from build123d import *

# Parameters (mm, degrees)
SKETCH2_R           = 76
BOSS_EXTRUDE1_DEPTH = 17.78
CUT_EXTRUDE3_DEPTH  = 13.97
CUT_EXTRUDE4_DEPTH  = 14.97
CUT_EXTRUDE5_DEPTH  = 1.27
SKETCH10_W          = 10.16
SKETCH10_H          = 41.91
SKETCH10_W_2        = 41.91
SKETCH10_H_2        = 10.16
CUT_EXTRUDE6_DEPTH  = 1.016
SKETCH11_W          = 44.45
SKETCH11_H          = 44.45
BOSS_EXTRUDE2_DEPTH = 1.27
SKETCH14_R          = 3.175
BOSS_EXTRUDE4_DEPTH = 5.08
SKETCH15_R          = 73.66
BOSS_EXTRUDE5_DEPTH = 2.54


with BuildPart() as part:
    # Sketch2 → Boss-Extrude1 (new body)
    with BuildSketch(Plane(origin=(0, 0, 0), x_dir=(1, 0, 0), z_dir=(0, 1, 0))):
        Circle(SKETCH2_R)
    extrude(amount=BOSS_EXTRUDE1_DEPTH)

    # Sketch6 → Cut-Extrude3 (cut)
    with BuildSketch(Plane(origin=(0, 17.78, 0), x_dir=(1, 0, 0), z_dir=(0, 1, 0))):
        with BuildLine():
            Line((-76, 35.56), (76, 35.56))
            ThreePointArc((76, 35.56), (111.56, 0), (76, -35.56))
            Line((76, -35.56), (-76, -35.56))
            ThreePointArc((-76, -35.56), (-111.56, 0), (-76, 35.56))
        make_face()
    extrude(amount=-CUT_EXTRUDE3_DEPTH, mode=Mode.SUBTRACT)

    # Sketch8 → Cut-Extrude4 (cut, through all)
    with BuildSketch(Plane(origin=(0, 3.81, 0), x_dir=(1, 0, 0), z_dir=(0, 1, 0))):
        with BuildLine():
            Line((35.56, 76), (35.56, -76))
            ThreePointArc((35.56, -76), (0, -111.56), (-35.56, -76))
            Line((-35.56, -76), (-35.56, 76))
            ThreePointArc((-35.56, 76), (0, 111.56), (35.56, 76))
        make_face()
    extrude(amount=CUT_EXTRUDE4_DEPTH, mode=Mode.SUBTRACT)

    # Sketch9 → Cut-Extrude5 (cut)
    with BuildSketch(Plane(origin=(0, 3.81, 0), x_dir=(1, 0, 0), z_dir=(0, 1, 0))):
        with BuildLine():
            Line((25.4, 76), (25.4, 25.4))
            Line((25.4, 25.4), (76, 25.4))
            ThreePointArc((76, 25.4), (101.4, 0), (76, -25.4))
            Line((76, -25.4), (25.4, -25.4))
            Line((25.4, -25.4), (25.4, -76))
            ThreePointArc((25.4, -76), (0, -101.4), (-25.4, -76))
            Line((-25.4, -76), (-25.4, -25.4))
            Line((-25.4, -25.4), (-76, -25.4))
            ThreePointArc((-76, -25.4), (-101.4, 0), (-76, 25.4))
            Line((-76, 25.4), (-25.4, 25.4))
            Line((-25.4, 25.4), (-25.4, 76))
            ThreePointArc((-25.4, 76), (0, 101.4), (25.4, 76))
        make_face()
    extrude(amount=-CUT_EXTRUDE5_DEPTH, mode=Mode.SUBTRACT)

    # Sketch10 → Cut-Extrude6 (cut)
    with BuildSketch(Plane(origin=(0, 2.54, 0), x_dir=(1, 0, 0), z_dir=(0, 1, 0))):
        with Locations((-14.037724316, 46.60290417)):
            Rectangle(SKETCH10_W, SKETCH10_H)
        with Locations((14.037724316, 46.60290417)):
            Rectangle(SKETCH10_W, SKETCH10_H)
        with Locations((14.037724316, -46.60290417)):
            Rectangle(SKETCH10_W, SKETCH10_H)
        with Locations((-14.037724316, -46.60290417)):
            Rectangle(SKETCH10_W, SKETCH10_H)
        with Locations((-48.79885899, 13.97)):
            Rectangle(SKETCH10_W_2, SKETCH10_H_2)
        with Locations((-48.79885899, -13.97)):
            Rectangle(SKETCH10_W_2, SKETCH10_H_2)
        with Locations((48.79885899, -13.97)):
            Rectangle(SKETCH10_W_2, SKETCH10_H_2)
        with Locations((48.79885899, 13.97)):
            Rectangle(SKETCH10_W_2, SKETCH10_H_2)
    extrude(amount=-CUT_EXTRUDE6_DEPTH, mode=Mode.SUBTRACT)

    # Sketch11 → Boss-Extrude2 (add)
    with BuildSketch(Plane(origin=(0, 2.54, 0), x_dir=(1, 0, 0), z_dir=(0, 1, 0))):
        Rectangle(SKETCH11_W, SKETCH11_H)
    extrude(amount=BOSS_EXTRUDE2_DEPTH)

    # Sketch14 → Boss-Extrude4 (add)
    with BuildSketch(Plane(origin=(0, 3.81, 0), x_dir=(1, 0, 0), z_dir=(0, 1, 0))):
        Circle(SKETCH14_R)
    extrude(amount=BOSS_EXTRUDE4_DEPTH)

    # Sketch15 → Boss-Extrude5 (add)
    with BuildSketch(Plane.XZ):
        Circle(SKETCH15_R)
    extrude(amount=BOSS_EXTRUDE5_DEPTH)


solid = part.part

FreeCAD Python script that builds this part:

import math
import FreeCAD as App
import Part
import Sketcher
from FreeCAD import Vector
Q = App.Units.Quantity

doc = App.newDocument("Part")
body = doc.addObject("PartDesign::Body", "Body")

# Sketch on XZ plane
sketch1 = body.newObject("Sketcher::SketchObject", "Sketch")
sketch1.AttachmentSupport = (doc.getObject("XZ_Plane"), [""])
sketch1.MapMode = "FlatFace"
sketch1.addGeometry(Part.Circle(Vector(0, 0, 0), Vector(0, 0, 1), 76), False)
sketch1.addConstraint([
    Sketcher.Constraint("Coincident", 0, 3, -1, 1),
    Sketcher.Constraint("Diameter", 0, Q("152 mm")),
])
pad1 = body.newObject("PartDesign::Pad", "Pad")
pad1.Profile = sketch1
pad1.Length = Q("0.7 in")
pad1.Reversed = True

# Sketch on XZ plane
sketch2 = body.newObject("Sketcher::SketchObject", "Sketch001")
sketch2.AttachmentSupport = (doc.getObject("XZ_Plane"), [""])
sketch2.MapMode = "FlatFace"
sketch2.AttachmentOffset = App.Placement(Vector(0, 0, -0.7 * 25.4), App.Rotation())
sketch2.addGeometry([
    Part.LineSegment(Vector(76, -35.56, 0), Vector(-76, -35.56, 0)),
    Part.ArcOfCircle(Part.Circle(Vector(-76, 0, 0), Vector(0, 0, 1), 35.56), math.radians(90), math.radians(270)),
    Part.LineSegment(Vector(-76, 35.56, 0), Vector(76, 35.56, 0)),
    Part.ArcOfCircle(Part.Circle(Vector(76, 0, 0), Vector(0, 0, 1), 35.56), math.radians(-90), math.radians(90)),
], False)
sketch2.addConstraint([
    Sketcher.Constraint("Tangent", 0, 2, 1, 2),
    Sketcher.Constraint("Tangent", 1, 1, 2, 1),
    Sketcher.Constraint("Tangent", 2, 2, 3, 2),
    Sketcher.Constraint("Tangent", 3, 1, 0, 1),
    Sketcher.Constraint("Horizontal", 0),
    Sketcher.Constraint("Horizontal", 2),
    Sketcher.Constraint("Symmetric", 1, 3, 3, 3, -1, 1),
    Sketcher.Constraint("Radius", 1, Q("1.4 in")),
    Sketcher.Constraint("DistanceX", 0, 2, 0, 1, Q("152 mm")),
])
pocket1 = body.newObject("PartDesign::Pocket", "Pocket")
pocket1.Profile = sketch2
pocket1.Length = Q("0.55 in")
pocket1.Reversed = True

# Sketch on XZ plane
sketch3 = body.newObject("Sketcher::SketchObject", "Sketch002")
sketch3.AttachmentSupport = (doc.getObject("XZ_Plane"), [""])
sketch3.MapMode = "FlatFace"
sketch3.AttachmentOffset = App.Placement(Vector(0, 0, -0.15 * 25.4), App.Rotation())
sketch3.addGeometry([
    Part.LineSegment(Vector(35.56, 76, 0), Vector(35.56, -76, 0)),
    Part.ArcOfCircle(Part.Circle(Vector(0, -76, 0), Vector(0, 0, 1), 35.56), math.radians(180), math.radians(360)),
    Part.LineSegment(Vector(-35.56, -76, 0), Vector(-35.56, 76, 0)),
    Part.ArcOfCircle(Part.Circle(Vector(0, 76, 0), Vector(0, 0, 1), 35.56), math.radians(0), math.radians(180)),
], False)
sketch3.addConstraint([
    Sketcher.Constraint("Tangent", 0, 2, 1, 2),
    Sketcher.Constraint("Tangent", 1, 1, 2, 1),
    Sketcher.Constraint("Tangent", 2, 2, 3, 2),
    Sketcher.Constraint("Tangent", 3, 1, 0, 1),
    Sketcher.Constraint("Vertical", 0),
    Sketcher.Constraint("Vertical", 2),
    Sketcher.Constraint("Symmetric", 1, 3, 3, 3, -1, 1),
    Sketcher.Constraint("Radius", 1, Q("1.4 in")),
    Sketcher.Constraint("DistanceY", 0, 2, 0, 1, Q("152 mm")),
])
pocket2 = body.newObject("PartDesign::Pocket", "Pocket001")
pocket2.Profile = sketch3
pocket2.Type = "ThroughAll"

# Sketch on XZ plane
sketch4 = body.newObject("Sketcher::SketchObject", "Sketch003")
sketch4.AttachmentSupport = (doc.getObject("XZ_Plane"), [""])
sketch4.MapMode = "FlatFace"
sketch4.AttachmentOffset = App.Placement(Vector(0, 0, -0.15 * 25.4), App.Rotation())
sketch4.addGeometry([
    Part.LineSegment(Vector(25.4, -25.4, 0), Vector(25.4, -76, 0)),  # 0
    Part.ArcOfCircle(Part.Circle(Vector(0, -76, 0), Vector(0, 0, 1), 25.4), math.radians(180), math.radians(360)),  # 1
    Part.LineSegment(Vector(-25.4, -76, 0), Vector(-25.4, -25.4, 0)),  # 2
    Part.LineSegment(Vector(-25.4, -25.4, 0), Vector(-76, -25.4, 0)),  # 3
    Part.ArcOfCircle(Part.Circle(Vector(-76, 0, 0), Vector(0, 0, 1), 25.4), math.radians(90), math.radians(270)),  # 4
    Part.LineSegment(Vector(-76, 25.4, 0), Vector(-25.4, 25.4, 0)),  # 5
    Part.LineSegment(Vector(-25.4, 25.4, 0), Vector(-25.4, 76, 0)),  # 6
    Part.ArcOfCircle(Part.Circle(Vector(0, 76, 0), Vector(0, 0, 1), 25.4), math.radians(0), math.radians(180)),  # 7
    Part.LineSegment(Vector(25.4, 76, 0), Vector(25.4, 25.4, 0)),  # 8
    Part.LineSegment(Vector(25.4, 25.4, 0), Vector(76, 25.4, 0)),  # 9
    Part.ArcOfCircle(Part.Circle(Vector(76, 0, 0), Vector(0, 0, 1), 25.4), math.radians(-90), math.radians(90)),  # 10
    Part.LineSegment(Vector(76, -25.4, 0), Vector(25.4, -25.4, 0)),  # 11
], False)
sketch4.addConstraint([
    Sketcher.Constraint("Tangent", 0, 2, 1, 2),
    Sketcher.Constraint("Tangent", 1, 1, 2, 1),
    Sketcher.Constraint("Coincident", 2, 2, 3, 1),
    Sketcher.Constraint("Tangent", 3, 2, 4, 2),
    Sketcher.Constraint("Tangent", 4, 1, 5, 1),
    Sketcher.Constraint("Coincident", 5, 2, 6, 1),
    Sketcher.Constraint("Tangent", 6, 2, 7, 2),
    Sketcher.Constraint("Tangent", 7, 1, 8, 1),
    Sketcher.Constraint("Coincident", 8, 2, 9, 1),
    Sketcher.Constraint("Tangent", 9, 2, 10, 2),
    Sketcher.Constraint("Tangent", 10, 1, 11, 1),
    Sketcher.Constraint("Coincident", 11, 2, 0, 1),
    Sketcher.Constraint("Vertical", 0),
    Sketcher.Constraint("Vertical", 2),
    Sketcher.Constraint("Horizontal", 3),
    Sketcher.Constraint("Horizontal", 5),
    Sketcher.Constraint("Vertical", 6),
    Sketcher.Constraint("Vertical", 8),
    Sketcher.Constraint("Horizontal", 9),
    Sketcher.Constraint("Horizontal", 11),
    Sketcher.Constraint("Equal", 1, 4),
    Sketcher.Constraint("Equal", 4, 7),
    Sketcher.Constraint("Equal", 7, 10),
    Sketcher.Constraint("Symmetric", 1, 3, 7, 3, -1, 1),
    Sketcher.Constraint("Symmetric", 4, 3, 10, 3, -1, 1),
    Sketcher.Constraint("Symmetric", 5, 2, 8, 2, -2),
    Sketcher.Constraint("Equal", 11, 0),
    Sketcher.Constraint("Radius", 1, Q("1 in")),
    Sketcher.Constraint("DistanceX", 3, 2, 3, 1, Q("50.6 mm")),
])
pocket3 = body.newObject("PartDesign::Pocket", "Pocket002")
pocket3.Profile = sketch4
pocket3.Length = Q("0.05 in")
pocket3.Reversed = True

# Sketch on XZ plane
sketch5 = body.newObject("Sketcher::SketchObject", "Sketch004")
sketch5.AttachmentSupport = (doc.getObject("XZ_Plane"), [""])
sketch5.MapMode = "FlatFace"
sketch5.AttachmentOffset = App.Placement(Vector(0, 0, -0.1 * 25.4), App.Rotation())
sketch5.addGeometry([
    Part.LineSegment(Vector(-19.117724, -67.557904, 0), Vector(-19.117724, -25.647904, 0)),  # 0
    Part.LineSegment(Vector(-19.117724, -25.647904, 0), Vector(-8.957724, -25.647904, 0)),  # 1
    Part.LineSegment(Vector(-8.957724, -25.647904, 0), Vector(-8.957724, -67.557904, 0)),  # 2
    Part.LineSegment(Vector(-8.957724, -67.557904, 0), Vector(-19.117724, -67.557904, 0)),  # 3
    Part.LineSegment(Vector(8.957724, -67.557904, 0), Vector(8.957724, -25.647904, 0)),  # 4
    Part.LineSegment(Vector(8.957724, -25.647904, 0), Vector(19.117724, -25.647904, 0)),  # 5
    Part.LineSegment(Vector(19.117724, -25.647904, 0), Vector(19.117724, -67.557904, 0)),  # 6
    Part.LineSegment(Vector(19.117724, -67.557904, 0), Vector(8.957724, -67.557904, 0)),  # 7
    Part.LineSegment(Vector(8.957724, 25.647904, 0), Vector(8.957724, 67.557904, 0)),  # 8
    Part.LineSegment(Vector(8.957724, 67.557904, 0), Vector(19.117724, 67.557904, 0)),  # 9
    Part.LineSegment(Vector(19.117724, 67.557904, 0), Vector(19.117724, 25.647904, 0)),  # 10
    Part.LineSegment(Vector(19.117724, 25.647904, 0), Vector(8.957724, 25.647904, 0)),  # 11
    Part.LineSegment(Vector(-19.117724, 25.647904, 0), Vector(-19.117724, 67.557904, 0)),  # 12
    Part.LineSegment(Vector(-19.117724, 67.557904, 0), Vector(-8.957724, 67.557904, 0)),  # 13
    Part.LineSegment(Vector(-8.957724, 67.557904, 0), Vector(-8.957724, 25.647904, 0)),  # 14
    Part.LineSegment(Vector(-8.957724, 25.647904, 0), Vector(-19.117724, 25.647904, 0)),  # 15
    Part.LineSegment(Vector(-69.753859, -19.05, 0), Vector(-69.753859, -8.89, 0)),  # 16
    Part.LineSegment(Vector(-69.753859, -8.89, 0), Vector(-27.843859, -8.89, 0)),  # 17
    Part.LineSegment(Vector(-27.843859, -8.89, 0), Vector(-27.843859, -19.05, 0)),  # 18
    Part.LineSegment(Vector(-27.843859, -19.05, 0), Vector(-69.753859, -19.05, 0)),  # 19
    Part.LineSegment(Vector(-69.753859, 8.89, 0), Vector(-69.753859, 19.05, 0)),  # 20
    Part.LineSegment(Vector(-69.753859, 19.05, 0), Vector(-27.843859, 19.05, 0)),  # 21
    Part.LineSegment(Vector(-27.843859, 19.05, 0), Vector(-27.843859, 8.89, 0)),  # 22
    Part.LineSegment(Vector(-27.843859, 8.89, 0), Vector(-69.753859, 8.89, 0)),  # 23
    Part.LineSegment(Vector(27.843859, 8.89, 0), Vector(27.843859, 19.05, 0)),  # 24
    Part.LineSegment(Vector(27.843859, 19.05, 0), Vector(69.753859, 19.05, 0)),  # 25
    Part.LineSegment(Vector(69.753859, 19.05, 0), Vector(69.753859, 8.89, 0)),  # 26
    Part.LineSegment(Vector(69.753859, 8.89, 0), Vector(27.843859, 8.89, 0)),  # 27
    Part.LineSegment(Vector(27.843859, -19.05, 0), Vector(27.843859, -8.89, 0)),  # 28
    Part.LineSegment(Vector(27.843859, -8.89, 0), Vector(69.753859, -8.89, 0)),  # 29
    Part.LineSegment(Vector(69.753859, -8.89, 0), Vector(69.753859, -19.05, 0)),  # 30
    Part.LineSegment(Vector(69.753859, -19.05, 0), Vector(27.843859, -19.05, 0)),  # 31
], False)
sketch5.addConstraint([
    Sketcher.Constraint("Coincident", 0, 2, 1, 1),
    Sketcher.Constraint("Coincident", 1, 2, 2, 1),
    Sketcher.Constraint("Coincident", 2, 2, 3, 1),
    Sketcher.Constraint("Coincident", 3, 2, 0, 1),
    Sketcher.Constraint("Coincident", 4, 2, 5, 1),
    Sketcher.Constraint("Coincident", 5, 2, 6, 1),
    Sketcher.Constraint("Coincident", 6, 2, 7, 1),
    Sketcher.Constraint("Coincident", 7, 2, 4, 1),
    Sketcher.Constraint("Coincident", 8, 2, 9, 1),
    Sketcher.Constraint("Coincident", 9, 2, 10, 1),
    Sketcher.Constraint("Coincident", 10, 2, 11, 1),
    Sketcher.Constraint("Coincident", 11, 2, 8, 1),
    Sketcher.Constraint("Coincident", 12, 2, 13, 1),
    Sketcher.Constraint("Coincident", 13, 2, 14, 1),
    Sketcher.Constraint("Coincident", 14, 2, 15, 1),
    Sketcher.Constraint("Coincident", 15, 2, 12, 1),
    Sketcher.Constraint("Coincident", 16, 2, 17, 1),
    Sketcher.Constraint("Coincident", 17, 2, 18, 1),
    Sketcher.Constraint("Coincident", 18, 2, 19, 1),
    Sketcher.Constraint("Coincident", 19, 2, 16, 1),
    Sketcher.Constraint("Coincident", 20, 2, 21, 1),
    Sketcher.Constraint("Coincident", 21, 2, 22, 1),
    Sketcher.Constraint("Coincident", 22, 2, 23, 1),
    Sketcher.Constraint("Coincident", 23, 2, 20, 1),
    Sketcher.Constraint("Coincident", 24, 2, 25, 1),
    Sketcher.Constraint("Coincident", 25, 2, 26, 1),
    Sketcher.Constraint("Coincident", 26, 2, 27, 1),
    Sketcher.Constraint("Coincident", 27, 2, 24, 1),
    Sketcher.Constraint("Coincident", 28, 2, 29, 1),
    Sketcher.Constraint("Coincident", 29, 2, 30, 1),
    Sketcher.Constraint("Coincident", 30, 2, 31, 1),
    Sketcher.Constraint("Coincident", 31, 2, 28, 1),
    Sketcher.Constraint("Vertical", 0),
    Sketcher.Constraint("Horizontal", 1),
    Sketcher.Constraint("Vertical", 2),
    Sketcher.Constraint("Horizontal", 3),
    Sketcher.Constraint("Vertical", 4),
    Sketcher.Constraint("Horizontal", 5),
    Sketcher.Constraint("Vertical", 6),
    Sketcher.Constraint("Horizontal", 7),
    Sketcher.Constraint("Vertical", 8),
    Sketcher.Constraint("Horizontal", 9),
    Sketcher.Constraint("Vertical", 10),
    Sketcher.Constraint("Horizontal", 11),
    Sketcher.Constraint("Vertical", 12),
    Sketcher.Constraint("Horizontal", 13),
    Sketcher.Constraint("Vertical", 14),
    Sketcher.Constraint("Horizontal", 15),
    Sketcher.Constraint("Vertical", 16),
    Sketcher.Constraint("Horizontal", 17),
    Sketcher.Constraint("Vertical", 18),
    Sketcher.Constraint("Horizontal", 19),
    Sketcher.Constraint("Vertical", 20),
    Sketcher.Constraint("Horizontal", 21),
    Sketcher.Constraint("Vertical", 22),
    Sketcher.Constraint("Horizontal", 23),
    Sketcher.Constraint("Vertical", 24),
    Sketcher.Constraint("Horizontal", 25),
    Sketcher.Constraint("Vertical", 26),
    Sketcher.Constraint("Horizontal", 27),
    Sketcher.Constraint("Vertical", 28),
    Sketcher.Constraint("Horizontal", 29),
    Sketcher.Constraint("Vertical", 30),
    Sketcher.Constraint("Horizontal", 31),
    Sketcher.Constraint("Symmetric", 2, 2, 8, 2, -1, 1),
    Sketcher.Constraint("Symmetric", 0, 2, 10, 2, -1, 1),
    Sketcher.Constraint("Symmetric", 6, 2, 12, 2, -1, 1),
    Sketcher.Constraint("Symmetric", 4, 2, 14, 2, -1, 1),
    Sketcher.Constraint("Symmetric", 18, 2, 24, 2, -1, 1),
    Sketcher.Constraint("Symmetric", 16, 2, 26, 2, -1, 1),
    Sketcher.Constraint("Symmetric", 22, 2, 28, 2, -1, 1),
    Sketcher.Constraint("Symmetric", 20, 2, 30, 2, -1, 1),
    Sketcher.Constraint("Symmetric", 1, 2, 4, 2, -2),
    Sketcher.Constraint("Symmetric", 3, 2, 6, 2, -2),
    Sketcher.Constraint("Symmetric", 21, 2, 24, 2, -2),
    Sketcher.Constraint("Symmetric", 23, 2, 26, 2, -2),
    Sketcher.Constraint("Equal", 31, 0),
    Sketcher.Constraint("Equal", 15, 16),
    Sketcher.Constraint("DistanceX", 1, 1, 1, 2, Q("0.4 in")),
    Sketcher.Constraint("DistanceX", 17, 1, 17, 2, Q("1.65 in")),
    Sketcher.Constraint("DistanceY", 16, 2, 20, 2, Q("1.1 in")),
    Sketcher.Constraint("DistanceX", 16, 2, -1, 1, Q("69.753859 mm")),
    Sketcher.Constraint("DistanceX", 1, 2, 4, 2, Q("17.915449 mm")),
    Sketcher.Constraint("DistanceY", 4, 2, 8, 2, Q("93.205808 mm")),
])
pocket4 = body.newObject("PartDesign::Pocket", "Pocket003")
pocket4.Profile = sketch5
pocket4.Length = Q("0.04 in")
pocket4.Reversed = True

# Sketch on XZ plane
sketch6 = body.newObject("Sketcher::SketchObject", "Sketch005")
sketch6.AttachmentSupport = (doc.getObject("XZ_Plane"), [""])
sketch6.MapMode = "FlatFace"
sketch6.AttachmentOffset = App.Placement(Vector(0, 0, -0.1 * 25.4), App.Rotation())
sketch6.addGeometry([
    Part.LineSegment(Vector(-22.225, -22.225, 0), Vector(-22.225, 22.225, 0)),
    Part.LineSegment(Vector(-22.225, 22.225, 0), Vector(22.225, 22.225, 0)),
    Part.LineSegment(Vector(22.225, 22.225, 0), Vector(22.225, -22.225, 0)),
    Part.LineSegment(Vector(22.225, -22.225, 0), Vector(-22.225, -22.225, 0)),
], False)
sketch6.addConstraint([
    Sketcher.Constraint("Coincident", 0, 2, 1, 1),
    Sketcher.Constraint("Coincident", 1, 2, 2, 1),
    Sketcher.Constraint("Coincident", 2, 2, 3, 1),
    Sketcher.Constraint("Coincident", 3, 2, 0, 1),
    Sketcher.Constraint("Vertical", 0),
    Sketcher.Constraint("Horizontal", 1),
    Sketcher.Constraint("Vertical", 2),
    Sketcher.Constraint("Horizontal", 3),
    Sketcher.Constraint("Symmetric", 0, 2, 2, 2, -1, 1),
    Sketcher.Constraint("Equal", 3, 0),
    Sketcher.Constraint("DistanceX", 1, 1, 1, 2, Q("1.75 in")),
])
pad2 = body.newObject("PartDesign::Pad", "Pad001")
pad2.Profile = sketch6
pad2.Length = Q("0.05 in")
pad2.Reversed = True

# Sketch on XZ plane
sketch7 = body.newObject("Sketcher::SketchObject", "Sketch006")
sketch7.AttachmentSupport = (doc.getObject("XZ_Plane"), [""])
sketch7.MapMode = "FlatFace"
sketch7.AttachmentOffset = App.Placement(Vector(0, 0, -0.15 * 25.4), App.Rotation())
sketch7.addGeometry(Part.Circle(Vector(0, 0, 0), Vector(0, 0, 1), 3.175), False)
sketch7.addConstraint([
    Sketcher.Constraint("Coincident", 0, 3, -1, 1),
    Sketcher.Constraint("Diameter", 0, Q("0.25 in")),
])
pad3 = body.newObject("PartDesign::Pad", "Pad002")
pad3.Profile = sketch7
pad3.Length = Q("0.2 in")
pad3.Reversed = True

# Sketch on XZ plane
sketch8 = body.newObject("Sketcher::SketchObject", "Sketch007")
sketch8.AttachmentSupport = (doc.getObject("XZ_Plane"), [""])
sketch8.MapMode = "FlatFace"
sketch8.addGeometry(Part.Circle(Vector(0, 0, 0), Vector(0, 0, 1), 73.66), False)
sketch8.addConstraint([
    Sketcher.Constraint("Coincident", 0, 3, -1, 1),
    Sketcher.Constraint("Diameter", 0, Q("5.8 in")),
])
pad4 = body.newObject("PartDesign::Pad", "Pad003")
pad4.Profile = sketch8
pad4.Length = Q("0.1 in")

doc.recompute()
